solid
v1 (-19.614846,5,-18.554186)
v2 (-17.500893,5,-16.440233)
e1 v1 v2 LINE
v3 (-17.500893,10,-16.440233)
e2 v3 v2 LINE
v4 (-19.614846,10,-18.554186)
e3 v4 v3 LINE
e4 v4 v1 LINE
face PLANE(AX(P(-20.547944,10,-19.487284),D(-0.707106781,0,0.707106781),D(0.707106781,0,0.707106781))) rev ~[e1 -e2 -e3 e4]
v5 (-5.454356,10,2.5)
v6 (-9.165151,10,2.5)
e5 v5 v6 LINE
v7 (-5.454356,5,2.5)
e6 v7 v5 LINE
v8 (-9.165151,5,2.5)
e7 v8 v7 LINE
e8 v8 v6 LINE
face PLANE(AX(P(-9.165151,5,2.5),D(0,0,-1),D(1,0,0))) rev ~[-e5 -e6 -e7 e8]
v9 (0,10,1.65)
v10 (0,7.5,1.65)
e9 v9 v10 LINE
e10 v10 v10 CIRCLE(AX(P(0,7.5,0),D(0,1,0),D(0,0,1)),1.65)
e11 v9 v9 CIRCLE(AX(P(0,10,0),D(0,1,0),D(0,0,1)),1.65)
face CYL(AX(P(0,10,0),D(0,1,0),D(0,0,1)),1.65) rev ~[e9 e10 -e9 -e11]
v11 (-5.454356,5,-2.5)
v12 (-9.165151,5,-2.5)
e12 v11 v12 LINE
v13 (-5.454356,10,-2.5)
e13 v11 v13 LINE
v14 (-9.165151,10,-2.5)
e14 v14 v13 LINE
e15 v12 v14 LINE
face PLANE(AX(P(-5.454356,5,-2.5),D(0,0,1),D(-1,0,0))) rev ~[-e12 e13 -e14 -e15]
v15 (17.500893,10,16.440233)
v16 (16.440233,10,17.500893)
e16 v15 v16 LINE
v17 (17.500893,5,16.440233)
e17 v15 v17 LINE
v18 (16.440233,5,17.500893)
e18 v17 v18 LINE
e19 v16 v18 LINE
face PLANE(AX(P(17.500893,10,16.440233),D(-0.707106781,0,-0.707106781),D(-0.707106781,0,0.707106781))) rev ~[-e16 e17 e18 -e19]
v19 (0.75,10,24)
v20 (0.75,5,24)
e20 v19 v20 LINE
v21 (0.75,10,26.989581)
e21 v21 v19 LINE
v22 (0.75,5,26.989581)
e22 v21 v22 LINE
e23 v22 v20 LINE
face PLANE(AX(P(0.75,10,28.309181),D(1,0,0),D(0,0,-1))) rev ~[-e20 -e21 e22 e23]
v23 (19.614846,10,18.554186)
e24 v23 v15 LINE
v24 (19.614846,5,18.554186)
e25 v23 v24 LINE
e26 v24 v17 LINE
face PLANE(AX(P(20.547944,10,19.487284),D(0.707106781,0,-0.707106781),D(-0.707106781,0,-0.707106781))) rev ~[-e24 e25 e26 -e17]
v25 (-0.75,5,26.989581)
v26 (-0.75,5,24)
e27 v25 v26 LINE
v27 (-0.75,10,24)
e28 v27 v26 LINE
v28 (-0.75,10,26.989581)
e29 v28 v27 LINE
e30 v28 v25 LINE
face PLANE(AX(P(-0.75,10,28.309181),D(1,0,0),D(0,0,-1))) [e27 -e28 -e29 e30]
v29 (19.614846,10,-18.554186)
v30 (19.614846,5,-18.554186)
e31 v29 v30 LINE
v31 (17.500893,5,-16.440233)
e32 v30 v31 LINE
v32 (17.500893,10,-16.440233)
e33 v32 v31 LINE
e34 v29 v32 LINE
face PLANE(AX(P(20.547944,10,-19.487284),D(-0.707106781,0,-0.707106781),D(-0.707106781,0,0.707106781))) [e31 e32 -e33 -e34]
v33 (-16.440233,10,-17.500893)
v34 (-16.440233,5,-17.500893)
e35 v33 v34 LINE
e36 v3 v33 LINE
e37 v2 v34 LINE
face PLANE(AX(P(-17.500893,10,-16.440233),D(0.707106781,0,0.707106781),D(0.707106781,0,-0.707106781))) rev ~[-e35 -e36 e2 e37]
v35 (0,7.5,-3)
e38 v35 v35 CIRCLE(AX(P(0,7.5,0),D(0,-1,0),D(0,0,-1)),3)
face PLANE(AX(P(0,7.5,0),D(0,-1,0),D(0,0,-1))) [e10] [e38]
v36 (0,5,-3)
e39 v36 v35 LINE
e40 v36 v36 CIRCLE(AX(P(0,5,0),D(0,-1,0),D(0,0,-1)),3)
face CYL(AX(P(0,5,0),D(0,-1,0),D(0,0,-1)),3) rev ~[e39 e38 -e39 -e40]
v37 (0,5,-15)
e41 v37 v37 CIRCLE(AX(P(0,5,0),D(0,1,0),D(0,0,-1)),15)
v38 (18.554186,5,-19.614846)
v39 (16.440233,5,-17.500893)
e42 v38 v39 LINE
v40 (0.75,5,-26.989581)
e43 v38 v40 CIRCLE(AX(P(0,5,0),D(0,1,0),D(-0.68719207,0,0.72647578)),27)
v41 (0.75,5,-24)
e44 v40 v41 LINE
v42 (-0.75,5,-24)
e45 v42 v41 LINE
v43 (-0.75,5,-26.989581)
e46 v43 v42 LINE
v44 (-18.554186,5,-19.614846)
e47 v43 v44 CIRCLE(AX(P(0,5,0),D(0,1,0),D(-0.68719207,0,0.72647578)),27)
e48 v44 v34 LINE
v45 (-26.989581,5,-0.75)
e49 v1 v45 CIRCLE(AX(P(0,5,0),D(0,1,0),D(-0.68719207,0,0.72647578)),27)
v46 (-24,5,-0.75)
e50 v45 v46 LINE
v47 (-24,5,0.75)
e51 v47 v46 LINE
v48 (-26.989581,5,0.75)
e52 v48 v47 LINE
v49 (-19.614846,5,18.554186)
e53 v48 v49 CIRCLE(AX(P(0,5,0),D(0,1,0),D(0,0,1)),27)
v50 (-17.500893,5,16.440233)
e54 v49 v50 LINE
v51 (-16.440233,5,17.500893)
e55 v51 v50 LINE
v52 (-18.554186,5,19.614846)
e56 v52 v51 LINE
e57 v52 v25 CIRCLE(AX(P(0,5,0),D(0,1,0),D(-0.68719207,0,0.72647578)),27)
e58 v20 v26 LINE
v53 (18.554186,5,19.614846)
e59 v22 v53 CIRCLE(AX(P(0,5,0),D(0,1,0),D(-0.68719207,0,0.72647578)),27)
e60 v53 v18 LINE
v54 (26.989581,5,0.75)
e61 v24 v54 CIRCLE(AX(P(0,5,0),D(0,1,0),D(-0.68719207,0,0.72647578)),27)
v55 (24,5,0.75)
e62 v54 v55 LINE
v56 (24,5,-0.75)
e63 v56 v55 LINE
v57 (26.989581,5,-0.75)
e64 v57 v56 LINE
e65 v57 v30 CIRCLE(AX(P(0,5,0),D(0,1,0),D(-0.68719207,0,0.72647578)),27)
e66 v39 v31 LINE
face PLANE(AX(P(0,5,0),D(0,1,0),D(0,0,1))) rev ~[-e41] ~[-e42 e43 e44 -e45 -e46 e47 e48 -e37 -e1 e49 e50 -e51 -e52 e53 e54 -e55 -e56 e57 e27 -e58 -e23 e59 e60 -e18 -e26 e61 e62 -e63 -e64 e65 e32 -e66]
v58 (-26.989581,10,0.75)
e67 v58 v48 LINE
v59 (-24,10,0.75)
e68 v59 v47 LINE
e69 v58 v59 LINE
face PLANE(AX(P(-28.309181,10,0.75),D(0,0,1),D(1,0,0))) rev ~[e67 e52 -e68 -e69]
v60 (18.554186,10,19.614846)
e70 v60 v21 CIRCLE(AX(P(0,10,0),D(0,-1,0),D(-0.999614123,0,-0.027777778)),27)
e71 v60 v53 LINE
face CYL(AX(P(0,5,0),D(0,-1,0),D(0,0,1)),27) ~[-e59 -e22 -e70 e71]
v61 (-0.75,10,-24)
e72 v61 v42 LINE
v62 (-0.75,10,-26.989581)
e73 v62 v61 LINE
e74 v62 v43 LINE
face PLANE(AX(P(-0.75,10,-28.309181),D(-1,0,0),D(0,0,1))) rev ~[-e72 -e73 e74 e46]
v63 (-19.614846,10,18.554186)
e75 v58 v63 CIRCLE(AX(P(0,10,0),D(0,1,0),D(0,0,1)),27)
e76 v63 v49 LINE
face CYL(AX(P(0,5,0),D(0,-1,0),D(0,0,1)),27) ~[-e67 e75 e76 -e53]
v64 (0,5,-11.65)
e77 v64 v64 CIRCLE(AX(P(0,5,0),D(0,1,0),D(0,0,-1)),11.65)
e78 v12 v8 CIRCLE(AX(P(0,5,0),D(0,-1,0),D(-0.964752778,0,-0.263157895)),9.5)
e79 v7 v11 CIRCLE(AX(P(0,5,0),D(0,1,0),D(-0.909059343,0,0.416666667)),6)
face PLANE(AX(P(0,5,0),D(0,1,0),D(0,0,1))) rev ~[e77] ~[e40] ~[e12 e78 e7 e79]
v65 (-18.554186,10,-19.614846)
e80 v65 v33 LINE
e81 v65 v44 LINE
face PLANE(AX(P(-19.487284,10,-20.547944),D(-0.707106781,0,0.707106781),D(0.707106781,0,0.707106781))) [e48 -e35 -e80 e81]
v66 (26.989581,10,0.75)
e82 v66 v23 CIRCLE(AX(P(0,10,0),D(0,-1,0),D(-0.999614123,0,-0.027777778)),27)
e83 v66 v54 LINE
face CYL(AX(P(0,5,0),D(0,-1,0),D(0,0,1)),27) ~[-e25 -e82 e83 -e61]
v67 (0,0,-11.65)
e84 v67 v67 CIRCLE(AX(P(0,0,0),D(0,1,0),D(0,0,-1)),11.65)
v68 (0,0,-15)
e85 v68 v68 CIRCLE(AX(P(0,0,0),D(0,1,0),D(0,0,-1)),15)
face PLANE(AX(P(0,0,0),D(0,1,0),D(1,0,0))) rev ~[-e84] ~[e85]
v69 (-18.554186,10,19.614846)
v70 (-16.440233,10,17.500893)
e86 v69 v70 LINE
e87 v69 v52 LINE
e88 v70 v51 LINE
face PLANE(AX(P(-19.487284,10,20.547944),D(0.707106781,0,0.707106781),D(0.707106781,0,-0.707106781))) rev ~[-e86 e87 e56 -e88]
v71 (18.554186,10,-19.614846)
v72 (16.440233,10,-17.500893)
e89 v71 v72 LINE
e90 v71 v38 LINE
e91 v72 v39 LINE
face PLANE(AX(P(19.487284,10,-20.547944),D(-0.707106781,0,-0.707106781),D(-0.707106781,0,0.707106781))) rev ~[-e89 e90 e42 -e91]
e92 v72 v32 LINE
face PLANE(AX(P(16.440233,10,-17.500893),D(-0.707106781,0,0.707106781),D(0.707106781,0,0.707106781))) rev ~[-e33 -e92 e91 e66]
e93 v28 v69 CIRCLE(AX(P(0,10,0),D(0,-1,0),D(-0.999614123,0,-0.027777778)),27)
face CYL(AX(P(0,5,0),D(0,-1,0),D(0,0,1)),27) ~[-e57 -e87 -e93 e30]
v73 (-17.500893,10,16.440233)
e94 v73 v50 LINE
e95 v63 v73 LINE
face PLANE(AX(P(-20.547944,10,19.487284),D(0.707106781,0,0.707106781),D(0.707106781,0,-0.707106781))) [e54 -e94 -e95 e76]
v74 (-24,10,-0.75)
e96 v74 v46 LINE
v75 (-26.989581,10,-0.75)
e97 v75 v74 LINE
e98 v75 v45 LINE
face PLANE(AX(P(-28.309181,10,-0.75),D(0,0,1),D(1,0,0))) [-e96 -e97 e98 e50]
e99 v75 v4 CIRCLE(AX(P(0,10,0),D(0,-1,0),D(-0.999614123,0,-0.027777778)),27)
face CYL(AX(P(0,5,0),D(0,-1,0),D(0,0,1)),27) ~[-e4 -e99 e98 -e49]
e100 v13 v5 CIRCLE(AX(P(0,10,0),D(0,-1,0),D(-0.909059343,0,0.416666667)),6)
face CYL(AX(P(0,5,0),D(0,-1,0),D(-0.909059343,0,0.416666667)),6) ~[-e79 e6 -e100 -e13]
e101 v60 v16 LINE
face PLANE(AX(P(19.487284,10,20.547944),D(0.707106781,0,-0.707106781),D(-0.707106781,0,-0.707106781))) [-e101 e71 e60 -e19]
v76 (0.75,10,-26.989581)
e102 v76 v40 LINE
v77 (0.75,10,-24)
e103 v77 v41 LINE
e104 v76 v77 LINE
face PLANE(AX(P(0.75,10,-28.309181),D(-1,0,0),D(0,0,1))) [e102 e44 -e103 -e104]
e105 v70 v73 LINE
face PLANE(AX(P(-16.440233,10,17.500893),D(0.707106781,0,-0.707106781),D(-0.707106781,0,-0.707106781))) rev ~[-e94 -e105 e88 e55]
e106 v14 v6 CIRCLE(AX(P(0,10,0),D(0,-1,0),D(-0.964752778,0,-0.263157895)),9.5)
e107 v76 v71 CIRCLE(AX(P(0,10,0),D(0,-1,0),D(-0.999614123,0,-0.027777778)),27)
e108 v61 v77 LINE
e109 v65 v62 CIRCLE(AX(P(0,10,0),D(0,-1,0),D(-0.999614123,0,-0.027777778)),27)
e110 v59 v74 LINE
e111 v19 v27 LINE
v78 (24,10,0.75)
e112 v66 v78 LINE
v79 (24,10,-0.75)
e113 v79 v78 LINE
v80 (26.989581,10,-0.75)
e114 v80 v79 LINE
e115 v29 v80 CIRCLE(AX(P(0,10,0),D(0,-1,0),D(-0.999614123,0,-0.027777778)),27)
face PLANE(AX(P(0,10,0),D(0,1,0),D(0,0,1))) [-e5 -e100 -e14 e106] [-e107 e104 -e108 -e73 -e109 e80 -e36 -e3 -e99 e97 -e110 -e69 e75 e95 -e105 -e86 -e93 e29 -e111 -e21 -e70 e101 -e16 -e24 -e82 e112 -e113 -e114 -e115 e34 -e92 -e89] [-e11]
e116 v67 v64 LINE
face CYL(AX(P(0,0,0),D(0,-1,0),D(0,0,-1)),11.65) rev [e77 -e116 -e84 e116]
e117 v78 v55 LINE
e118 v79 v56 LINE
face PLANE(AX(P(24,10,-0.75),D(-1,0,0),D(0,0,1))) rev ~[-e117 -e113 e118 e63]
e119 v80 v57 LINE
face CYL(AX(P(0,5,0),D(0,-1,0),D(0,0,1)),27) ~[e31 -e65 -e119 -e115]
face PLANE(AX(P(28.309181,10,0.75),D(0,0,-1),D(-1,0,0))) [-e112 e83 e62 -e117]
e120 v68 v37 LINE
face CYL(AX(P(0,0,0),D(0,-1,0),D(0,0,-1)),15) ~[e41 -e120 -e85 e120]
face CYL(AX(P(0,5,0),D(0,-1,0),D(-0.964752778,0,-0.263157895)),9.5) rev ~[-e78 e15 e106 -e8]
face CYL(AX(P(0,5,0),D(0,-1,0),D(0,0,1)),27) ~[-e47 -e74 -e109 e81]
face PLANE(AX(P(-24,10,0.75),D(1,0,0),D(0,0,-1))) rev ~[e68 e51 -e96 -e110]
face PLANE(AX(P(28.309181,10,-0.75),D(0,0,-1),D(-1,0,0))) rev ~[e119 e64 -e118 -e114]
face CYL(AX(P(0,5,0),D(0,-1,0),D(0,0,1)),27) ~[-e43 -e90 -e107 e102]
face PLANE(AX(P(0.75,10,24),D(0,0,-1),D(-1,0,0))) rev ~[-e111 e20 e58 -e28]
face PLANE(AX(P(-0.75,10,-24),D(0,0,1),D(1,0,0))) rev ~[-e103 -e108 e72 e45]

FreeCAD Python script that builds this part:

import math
import FreeCAD as App
import Part
import Sketcher

V = App.Vector
Q = App.Units.Quantity

doc = App.newDocument("Part")
body = doc.addObject("PartDesign::Body", "Body")

# Sketch on XZ plane
sketch1 = doc.addObject("Sketcher::SketchObject", "Sketch")
body.addObject(sketch1)
sketch1.AttachmentSupport = (doc.XZ_Plane, [""])
sketch1.MapMode = "FlatFace"
sketch1.addGeometry([
    Part.Circle(V(0, 0, 0), V(0, 0, 1), 15),
    Part.Circle(V(0, 0, 0), V(0, 0, 1), 11.65),
], False)
sketch1.addConstraint([
    Sketcher.Constraint("Coincident", 0, 3, -1, 1),
    Sketcher.Constraint("Coincident", 1, 3, -1, 1),
    Sketcher.Constraint("Diameter", 0, Q("30 mm")),
    Sketcher.Constraint("Diameter", 1, Q("23.3 mm")),
])
pad1 = doc.addObject("PartDesign::Pad", "Pad")
body.addObject(pad1)
pad1.Profile = sketch1
pad1.Length = 5
pad1.Reversed = True

# Sketch on XZ plane
sketch2 = doc.addObject("Sketcher::SketchObject", "Sketch001")
body.addObject(sketch2)
sketch2.AttachmentSupport = (doc.XZ_Plane, [""])
sketch2.MapMode = "FlatFace"
sketch2.AttachmentOffset = App.Placement(V(0, 0, -5), App.Rotation())
sketch2.addGeometry(Part.Circle(V(0, 0, 0), V(0, 0, 1), 27), False)
sketch2.addConstraint([
    Sketcher.Constraint("Coincident", 0, 3, -1, 1),
    Sketcher.Constraint("Diameter", 0, Q("54 mm")),
])
pad2 = doc.addObject("PartDesign::Pad", "Pad001")
body.addObject(pad2)
pad2.Profile = sketch2
pad2.Length = 5
pad2.Reversed = True

# Sketch on XZ plane
sketch3 = doc.addObject("Sketcher::SketchObject", "Sketch002")
body.addObject(sketch3)
sketch3.AttachmentSupport = (doc.XZ_Plane, [""])
sketch3.MapMode = "FlatFace"
sketch3.AttachmentOffset = App.Placement(V(0, 0, -5), App.Rotation())
sketch3.addGeometry(Part.Circle(V(0, 0, 0), V(0, 0, 1), 3), False)
sketch3.addConstraint([
    Sketcher.Constraint("Coincident", 0, 3, -1, 1),
    Sketcher.Constraint("Diameter", 0, Q("6 mm")),
])
pocket1 = doc.addObject("PartDesign::Pocket", "Pocket")
body.addObject(pocket1)
pocket1.Profile = sketch3
pocket1.Length = 2.5

# Sketch on XZ plane
sketch4 = doc.addObject("Sketcher::SketchObject", "Sketch003")
body.addObject(sketch4)
sketch4.AttachmentSupport = (doc.XZ_Plane, [""])
sketch4.MapMode = "FlatFace"
sketch4.AttachmentOffset = App.Placement(V(0, 0, -5), App.Rotation())
sketch4.addGeometry([
    Part.LineSegment(V(-9.165151, 2.5, 0), V(-5.454356, 2.5, 0)),
    Part.ArcOfCircle(Part.Circle(V(0, 0, 0), V(0, 0, 1), 6), math.radians(-155.375682), math.radians(155.375682)),
    Part.LineSegment(V(-5.454356, -2.5, 0), V(-9.165151, -2.5, 0)),
    Part.ArcOfCircle(Part.Circle(V(0, 0, 0), V(0, 0, 1), 9.5), math.radians(-164.742477), math.radians(164.742477)),
], False)
sketch4.addConstraint([
    Sketcher.Constraint("Coincident", 0, 2, 1, 2),
    Sketcher.Constraint("Coincident", 1, 1, 2, 1),
    Sketcher.Constraint("Coincident", 2, 2, 3, 1),
    Sketcher.Constraint("Coincident", 3, 2, 0, 1),
    Sketcher.Constraint("Horizontal", 0),
    Sketcher.Constraint("Horizontal", 2),
    Sketcher.Constraint("Coincident", 1, 3, -1, 1),
    Sketcher.Constraint("Coincident", 3, 3, -1, 1),
    Sketcher.Constraint("Vertical", 0, 2, 1, 1),
    Sketcher.Constraint("Radius", 1, Q("6 mm")),
    Sketcher.Constraint("Radius", 3, Q("9.5 mm")),
    Sketcher.Constraint("DistanceY", 1, 1, 0, 2, Q("5 mm")),
])
pocket2 = doc.addObject("PartDesign::Pocket", "Pocket001")
body.addObject(pocket2)
pocket2.Profile = sketch4
pocket2.Type = "ThroughAll"

# Sketch on XZ plane
sketch5 = doc.addObject("Sketcher::SketchObject", "Sketch004")
body.addObject(sketch5)
sketch5.AttachmentSupport = (doc.XZ_Plane, [""])
sketch5.MapMode = "FlatFace"
sketch5.AttachmentOffset = App.Placement(V(0, 0, -10), App.Rotation())
sketch5.addGeometry([
    Part.LineSegment(V(-28.309181, -0.75, 0), V(-28.309181, 0.75, 0)),
    Part.LineSegment(V(-28.309181, 0.75, 0), V(-24, 0.75, 0)),
    Part.LineSegment(V(-24, 0.75, 0), V(-24, -0.75, 0)),
    Part.LineSegment(V(-24, -0.75, 0), V(-28.309181, -0.75, 0)),
], False)
sketch5.addConstraint([
    Sketcher.Constraint("Coincident", 0, 2, 1, 1),
    Sketcher.Constraint("Coincident", 1, 2, 2, 1),
    Sketcher.Constraint("Coincident", 2, 2, 3, 1),
    Sketcher.Constraint("Coincident", 3, 2, 0, 1),
    Sketcher.Constraint("Vertical", 0),
    Sketcher.Constraint("Horizontal", 1),
    Sketcher.Constraint("Vertical", 2),
    Sketcher.Constraint("Horizontal", 3),
    Sketcher.Constraint("DistanceY", 0, 1, 0, 2, Q("1.5 mm")),
    Sketcher.Constraint("DistanceX", 1, 2, -1, 1, Q("24 mm")),
    Sketcher.Constraint("DistanceY", -1, 1, 0, 2, Q("0.75 mm")),
    Sketcher.Constraint("DistanceX", 1, 1, 1, 2, Q("4.309181 mm")),
])
pocket3 = doc.addObject("PartDesign::Pocket", "Pocket002")
body.addObject(pocket3)
pocket3.Profile = sketch5
pocket3.Type = "ThroughAll"
pocket3.Reversed = True
doc.recompute()

polarpattern = doc.addObject("PartDesign::PolarPattern", "PolarPattern")
body.addObject(polarpattern)
polarpattern.Originals = [pocket3]
polarpattern.Axis = (doc.Y_Axis, [""])
polarpattern.Angle = 360
polarpattern.Occurrences = 8
body.Tip = polarpattern

# Sketch on XZ plane
sketch6 = doc.addObject("Sketcher::SketchObject", "Sketch005")
body.addObject(sketch6)
sketch6.AttachmentSupport = (doc.XZ_Plane, [""])
sketch6.MapMode = "FlatFace"
sketch6.AttachmentOffset = App.Placement(V(0, 0, -10), App.Rotation())
sketch6.addGeometry(Part.Circle(V(0, 0, 0), V(0, 0, 1), 1.65), False)
sketch6.addConstraint([
    Sketcher.Constraint("Coincident", 0, 3, -1, 1),
    Sketcher.Constraint("Diameter", 0, Q("3.3 mm")),
])
pocket4 = doc.addObject("PartDesign::Pocket", "Pocket003")
body.addObject(pocket4)
pocket4.Profile = sketch6
pocket4.Type = "ThroughAll"
pocket4.Reversed = True

doc.recompute()
